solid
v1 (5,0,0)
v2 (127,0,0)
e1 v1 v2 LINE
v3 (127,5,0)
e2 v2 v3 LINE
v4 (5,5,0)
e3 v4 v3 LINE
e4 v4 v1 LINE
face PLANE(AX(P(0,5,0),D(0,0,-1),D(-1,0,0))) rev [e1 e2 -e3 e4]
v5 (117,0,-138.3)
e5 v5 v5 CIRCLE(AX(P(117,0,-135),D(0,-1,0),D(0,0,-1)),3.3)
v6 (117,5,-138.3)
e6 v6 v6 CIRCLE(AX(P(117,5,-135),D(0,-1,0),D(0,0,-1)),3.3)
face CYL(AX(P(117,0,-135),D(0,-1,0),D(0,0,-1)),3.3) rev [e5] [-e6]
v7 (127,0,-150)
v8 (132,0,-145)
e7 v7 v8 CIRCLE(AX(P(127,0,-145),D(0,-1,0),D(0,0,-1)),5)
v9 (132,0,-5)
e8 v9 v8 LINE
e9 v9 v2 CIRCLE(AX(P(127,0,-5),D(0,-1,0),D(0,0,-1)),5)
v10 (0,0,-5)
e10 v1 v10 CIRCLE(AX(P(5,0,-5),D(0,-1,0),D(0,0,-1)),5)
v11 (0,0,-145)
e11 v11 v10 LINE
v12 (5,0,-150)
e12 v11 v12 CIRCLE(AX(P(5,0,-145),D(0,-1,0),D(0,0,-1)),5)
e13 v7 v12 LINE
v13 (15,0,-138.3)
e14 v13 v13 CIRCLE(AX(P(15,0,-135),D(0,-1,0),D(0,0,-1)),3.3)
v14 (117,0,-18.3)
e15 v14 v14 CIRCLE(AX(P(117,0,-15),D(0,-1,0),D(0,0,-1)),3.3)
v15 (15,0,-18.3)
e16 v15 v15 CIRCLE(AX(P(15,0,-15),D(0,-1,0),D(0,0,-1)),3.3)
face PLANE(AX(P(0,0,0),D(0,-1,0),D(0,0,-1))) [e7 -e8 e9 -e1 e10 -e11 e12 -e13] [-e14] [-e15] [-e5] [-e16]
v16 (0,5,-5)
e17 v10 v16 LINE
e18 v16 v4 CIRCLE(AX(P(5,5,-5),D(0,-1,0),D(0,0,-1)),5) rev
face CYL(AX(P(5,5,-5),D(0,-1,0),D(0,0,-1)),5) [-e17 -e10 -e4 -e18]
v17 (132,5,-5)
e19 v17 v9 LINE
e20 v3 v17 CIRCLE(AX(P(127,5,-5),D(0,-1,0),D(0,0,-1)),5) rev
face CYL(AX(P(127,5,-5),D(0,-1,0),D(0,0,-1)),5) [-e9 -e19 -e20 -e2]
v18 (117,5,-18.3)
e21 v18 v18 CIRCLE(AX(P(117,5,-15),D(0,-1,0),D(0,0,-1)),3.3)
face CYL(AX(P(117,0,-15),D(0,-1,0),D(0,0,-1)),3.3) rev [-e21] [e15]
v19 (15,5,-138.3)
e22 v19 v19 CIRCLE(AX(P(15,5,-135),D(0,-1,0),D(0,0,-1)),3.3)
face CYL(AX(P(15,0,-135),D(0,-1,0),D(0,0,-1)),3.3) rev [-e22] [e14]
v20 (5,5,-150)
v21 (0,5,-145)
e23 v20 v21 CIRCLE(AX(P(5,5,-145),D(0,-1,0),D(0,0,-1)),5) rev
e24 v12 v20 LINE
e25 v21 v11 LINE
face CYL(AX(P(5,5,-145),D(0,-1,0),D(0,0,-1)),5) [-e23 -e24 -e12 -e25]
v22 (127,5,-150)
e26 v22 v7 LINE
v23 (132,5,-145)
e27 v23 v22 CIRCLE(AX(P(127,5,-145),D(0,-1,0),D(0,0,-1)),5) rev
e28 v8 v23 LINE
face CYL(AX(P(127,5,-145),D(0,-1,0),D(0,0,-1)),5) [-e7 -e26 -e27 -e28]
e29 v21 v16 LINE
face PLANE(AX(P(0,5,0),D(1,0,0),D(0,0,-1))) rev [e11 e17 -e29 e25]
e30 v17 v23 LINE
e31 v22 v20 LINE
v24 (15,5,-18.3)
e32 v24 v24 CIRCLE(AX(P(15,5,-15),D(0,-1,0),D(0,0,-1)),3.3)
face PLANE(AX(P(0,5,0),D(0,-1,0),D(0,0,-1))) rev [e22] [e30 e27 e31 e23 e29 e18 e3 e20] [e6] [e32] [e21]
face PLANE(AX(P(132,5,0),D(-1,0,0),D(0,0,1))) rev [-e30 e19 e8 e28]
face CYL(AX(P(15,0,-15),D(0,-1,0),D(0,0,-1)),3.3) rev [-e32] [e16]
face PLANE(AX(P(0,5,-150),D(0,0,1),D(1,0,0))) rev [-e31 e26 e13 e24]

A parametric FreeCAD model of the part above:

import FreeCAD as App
import Part
import Sketcher
Q = App.Units.Quantity


def edges_at(feature, points):
    """Names of the edges that pass closest to the given points."""
    edges = feature.Shape.Edges
    near = lambda p: min(range(len(edges)), key=lambda i: edges[i].distToShape(Part.Vertex(*p))[0])
    return sorted({f"Edge{near(p) + 1}" for p in points})

doc = App.newDocument("Part")
params = doc.addObject("Spreadsheet::Sheet", "Params")
for row, (alias, value) in enumerate([
    ("sketch1_width", "132 mm"),
    ("sketch1_height", "150 mm"),
    ("pad1_length", "5 mm"),
    ("sketch2_diameter", "6.6 mm"),
    ("hole_diameter", "6.6 mm"),
    ("hole_depth", "10 mm"),
    ("fillet_radius", "5 mm"),
], start=1):
    params.set(f"A{row}", alias)
    params.set(f"B{row}", "=" + value)
    params.setAlias(f"B{row}", alias)

body = doc.addObject("PartDesign::Body", "Body")

# Sketch on XZ plane
sketch1 = body.newObject("Sketcher::SketchObject", "Sketch")
sketch1.AttachmentSupport = (doc.getObject("XZ_Plane"), [""])
sketch1.MapMode = "FlatFace"
sketch1.addGeometry([
    Part.LineSegment(App.Vector(0, -150, 0), App.Vector(0, 0, 0)),
    Part.LineSegment(App.Vector(0, 0, 0), App.Vector(132, 0, 0)),
    Part.LineSegment(App.Vector(132, 0, 0), App.Vector(132, -150, 0)),
    Part.LineSegment(App.Vector(132, -150, 0), App.Vector(0, -150, 0)),
], False)
sketch1.addConstraint([
    Sketcher.Constraint("Coincident", 0, 2, 1, 1),
    Sketcher.Constraint("Coincident", 1, 2, 2, 1),
    Sketcher.Constraint("Coincident", 2, 2, 3, 1),
    Sketcher.Constraint("Coincident", 3, 2, 0, 1),
    Sketcher.Constraint("Vertical", 0),
    Sketcher.Constraint("Horizontal", 1),
    Sketcher.Constraint("Vertical", 2),
    Sketcher.Constraint("Horizontal", 3),
    Sketcher.Constraint("Coincident", 0, 2, -1, 1),
    Sketcher.Constraint("DistanceX", 1, 1, 1, 2, Q("132 mm")),
    Sketcher.Constraint("DistanceY", 0, 1, 0, 2, Q("150 mm")),
])
sketch1.setExpression("Constraints[9]", "Params.sketch1_width")
sketch1.setExpression("Constraints[10]", "Params.sketch1_height")
pad1 = body.newObject("PartDesign::Pad", "Pad")
pad1.Profile = sketch1
pad1.setExpression("Length", "Params.pad1_length")
pad1.Reversed = True

# Sketch on XZ plane
sketch2 = body.newObject("Sketcher::SketchObject", "Sketch001")
sketch2.AttachmentSupport = (doc.getObject("XZ_Plane"), [""])
sketch2.MapMode = "FlatFace"
sketch2.addGeometry([
    Part.Circle(App.Vector(15, -15, 0), App.Vector(0, 0, 1), 3.3),
    Part.Circle(App.Vector(117, -15, 0), App.Vector(0, 0, 1), 3.3),
    Part.Circle(App.Vector(117, -135, 0), App.Vector(0, 0, 1), 3.3),
    Part.Circle(App.Vector(15, -135, 0), App.Vector(0, 0, 1), 3.3),
], False)
sketch2.addConstraint([
    Sketcher.Constraint("Equal", 0, 1),
    Sketcher.Constraint("Equal", 1, 2),
    Sketcher.Constraint("Equal", 2, 3),
    Sketcher.Constraint("Horizontal", 0, 3, 1, 3),
    Sketcher.Constraint("Horizontal", 2, 3, 3, 3),
    Sketcher.Constraint("Vertical", 1, 3, 2, 3),
    Sketcher.Constraint("Vertical", 0, 3, 3, 3),
    Sketcher.Constraint("Diameter", 0, Q("6.6 mm")),
    Sketcher.Constraint("DistanceX", -1, 1, 0, 3, Q("15 mm")),
    Sketcher.Constraint("DistanceY", 0, 3, -1, 1, Q("15 mm")),
    Sketcher.Constraint("DistanceX", -1, 1, 1, 3, Q("117 mm")),
    Sketcher.Constraint("DistanceY", 2, 3, -1, 1, Q("135 mm")),
])
sketch2.setExpression("Constraints[7]", "Params.sketch2_diameter")
doc.recompute()
hole = body.newObject("PartDesign::Hole", "Hole")
hole.Profile = sketch2
hole.ThreadType = "None"
hole.setExpression("Diameter", "Params.hole_diameter")
hole.DepthType = "Dimension"
hole.setExpression("Depth", "Params.hole_depth")
hole.DrillPoint = "Angled"
hole.DrillPointAngle = 118
doc.recompute()

fillet = body.newObject("PartDesign::Fillet", "Fillet")
fillet.Base = (hole, edges_at(hole, [
    (0, 2.5, -150),
    (132, 2.5, -150),
    (132, 2.5, 0),
    (0, 2.5, 0),
]))
fillet.setExpression("Radius", "Params.fillet_radius")

doc.recompute()
